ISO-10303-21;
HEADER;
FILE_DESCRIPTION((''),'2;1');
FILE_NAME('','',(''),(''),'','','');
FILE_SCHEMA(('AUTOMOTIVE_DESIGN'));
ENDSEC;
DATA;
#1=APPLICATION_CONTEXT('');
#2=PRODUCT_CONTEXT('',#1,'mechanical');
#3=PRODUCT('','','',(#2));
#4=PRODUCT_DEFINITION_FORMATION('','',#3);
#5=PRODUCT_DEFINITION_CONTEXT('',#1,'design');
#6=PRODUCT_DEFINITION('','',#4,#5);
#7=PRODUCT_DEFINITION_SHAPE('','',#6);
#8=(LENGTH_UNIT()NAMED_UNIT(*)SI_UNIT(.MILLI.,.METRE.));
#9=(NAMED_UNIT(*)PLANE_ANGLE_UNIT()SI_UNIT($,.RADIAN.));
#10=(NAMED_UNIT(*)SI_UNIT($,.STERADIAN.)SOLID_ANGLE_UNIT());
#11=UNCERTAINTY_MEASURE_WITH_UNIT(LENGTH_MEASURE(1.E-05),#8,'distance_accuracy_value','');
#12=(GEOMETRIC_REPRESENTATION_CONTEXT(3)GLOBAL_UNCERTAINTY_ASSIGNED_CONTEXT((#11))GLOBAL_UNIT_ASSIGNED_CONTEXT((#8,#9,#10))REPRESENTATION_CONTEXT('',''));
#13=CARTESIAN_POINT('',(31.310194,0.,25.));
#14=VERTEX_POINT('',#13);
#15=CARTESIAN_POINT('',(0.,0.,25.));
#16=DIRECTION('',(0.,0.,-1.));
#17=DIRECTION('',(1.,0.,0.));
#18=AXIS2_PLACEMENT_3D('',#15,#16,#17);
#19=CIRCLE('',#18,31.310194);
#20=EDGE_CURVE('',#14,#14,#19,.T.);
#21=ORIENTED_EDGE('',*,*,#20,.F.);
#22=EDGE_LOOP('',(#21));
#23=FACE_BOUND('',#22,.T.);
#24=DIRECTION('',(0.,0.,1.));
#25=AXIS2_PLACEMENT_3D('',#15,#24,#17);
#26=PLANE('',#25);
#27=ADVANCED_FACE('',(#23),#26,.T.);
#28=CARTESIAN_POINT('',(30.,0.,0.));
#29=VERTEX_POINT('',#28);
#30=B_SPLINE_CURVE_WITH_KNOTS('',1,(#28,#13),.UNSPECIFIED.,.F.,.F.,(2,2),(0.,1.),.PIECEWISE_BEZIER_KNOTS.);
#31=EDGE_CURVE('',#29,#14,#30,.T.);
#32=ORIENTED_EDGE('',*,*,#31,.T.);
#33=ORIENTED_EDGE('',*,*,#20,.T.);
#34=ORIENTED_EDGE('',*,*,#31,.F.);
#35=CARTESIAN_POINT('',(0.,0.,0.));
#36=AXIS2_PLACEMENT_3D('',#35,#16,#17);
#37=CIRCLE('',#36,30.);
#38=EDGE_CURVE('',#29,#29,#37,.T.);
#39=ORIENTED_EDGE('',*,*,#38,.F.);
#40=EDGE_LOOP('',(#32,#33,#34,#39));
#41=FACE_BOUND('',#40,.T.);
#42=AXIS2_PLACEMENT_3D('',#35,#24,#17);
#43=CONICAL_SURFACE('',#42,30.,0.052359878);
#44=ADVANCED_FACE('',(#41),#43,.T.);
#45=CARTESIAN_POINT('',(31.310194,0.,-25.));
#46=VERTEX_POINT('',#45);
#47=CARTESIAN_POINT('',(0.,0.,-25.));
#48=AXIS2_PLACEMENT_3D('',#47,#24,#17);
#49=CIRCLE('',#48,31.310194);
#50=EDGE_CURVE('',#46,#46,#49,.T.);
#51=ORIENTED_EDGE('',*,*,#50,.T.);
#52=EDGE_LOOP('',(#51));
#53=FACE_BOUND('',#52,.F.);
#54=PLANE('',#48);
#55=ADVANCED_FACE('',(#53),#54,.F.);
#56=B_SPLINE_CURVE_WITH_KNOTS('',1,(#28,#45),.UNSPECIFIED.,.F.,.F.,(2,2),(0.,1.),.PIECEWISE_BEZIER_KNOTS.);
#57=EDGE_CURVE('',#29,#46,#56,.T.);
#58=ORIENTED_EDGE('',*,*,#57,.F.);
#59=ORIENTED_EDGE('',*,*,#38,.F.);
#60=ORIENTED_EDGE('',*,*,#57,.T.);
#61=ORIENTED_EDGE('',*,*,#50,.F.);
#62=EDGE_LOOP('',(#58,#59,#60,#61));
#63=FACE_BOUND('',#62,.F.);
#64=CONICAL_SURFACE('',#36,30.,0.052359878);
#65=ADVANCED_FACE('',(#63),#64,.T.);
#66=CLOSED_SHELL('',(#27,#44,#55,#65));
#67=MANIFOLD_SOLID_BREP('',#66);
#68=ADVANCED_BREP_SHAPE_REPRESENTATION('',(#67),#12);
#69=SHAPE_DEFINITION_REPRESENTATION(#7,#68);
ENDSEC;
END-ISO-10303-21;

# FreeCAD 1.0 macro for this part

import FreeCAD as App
import Part
import Sketcher

V = App.Vector
Q = App.Units.Quantity

doc = App.newDocument("Part")
params = doc.addObject("Spreadsheet::Sheet", "Params")
for row, (alias, value) in enumerate([
    ("sketch1_diameter", "60 mm"),
    ("pad1_length", "50 mm"),
    ("pad1_taper", "3 deg"),
], start=1):
    params.set(f"A{row}", alias)
    params.set(f"B{row}", "=" + value)
    params.setAlias(f"B{row}", alias)

body = doc.addObject("PartDesign::Body", "Body")

# Sketch on XY plane
sketch1 = body.newObject("Sketcher::SketchObject", "Sketch")
sketch1.AttachmentSupport = (doc.getObject("XY_Plane"), [""])
sketch1.MapMode = "FlatFace"
sketch1.addGeometry(Part.Circle(V(0, 0, 0), V(0, 0, 1), 30), False)
sketch1.addConstraint([
    Sketcher.Constraint("Coincident", 0, 3, -1, 1),
    Sketcher.Constraint("Diameter", 0, Q("60 mm")),
])
sketch1.setExpression("Constraints[1]", "Params.sketch1_diameter")
pad1 = body.newObject("PartDesign::Pad", "Pad")
pad1.Profile = sketch1
pad1.setExpression("Length", "Params.pad1_length")
pad1.Midplane = True
pad1.setExpression("TaperAngle", "Params.pad1_taper")

doc.recompute()
